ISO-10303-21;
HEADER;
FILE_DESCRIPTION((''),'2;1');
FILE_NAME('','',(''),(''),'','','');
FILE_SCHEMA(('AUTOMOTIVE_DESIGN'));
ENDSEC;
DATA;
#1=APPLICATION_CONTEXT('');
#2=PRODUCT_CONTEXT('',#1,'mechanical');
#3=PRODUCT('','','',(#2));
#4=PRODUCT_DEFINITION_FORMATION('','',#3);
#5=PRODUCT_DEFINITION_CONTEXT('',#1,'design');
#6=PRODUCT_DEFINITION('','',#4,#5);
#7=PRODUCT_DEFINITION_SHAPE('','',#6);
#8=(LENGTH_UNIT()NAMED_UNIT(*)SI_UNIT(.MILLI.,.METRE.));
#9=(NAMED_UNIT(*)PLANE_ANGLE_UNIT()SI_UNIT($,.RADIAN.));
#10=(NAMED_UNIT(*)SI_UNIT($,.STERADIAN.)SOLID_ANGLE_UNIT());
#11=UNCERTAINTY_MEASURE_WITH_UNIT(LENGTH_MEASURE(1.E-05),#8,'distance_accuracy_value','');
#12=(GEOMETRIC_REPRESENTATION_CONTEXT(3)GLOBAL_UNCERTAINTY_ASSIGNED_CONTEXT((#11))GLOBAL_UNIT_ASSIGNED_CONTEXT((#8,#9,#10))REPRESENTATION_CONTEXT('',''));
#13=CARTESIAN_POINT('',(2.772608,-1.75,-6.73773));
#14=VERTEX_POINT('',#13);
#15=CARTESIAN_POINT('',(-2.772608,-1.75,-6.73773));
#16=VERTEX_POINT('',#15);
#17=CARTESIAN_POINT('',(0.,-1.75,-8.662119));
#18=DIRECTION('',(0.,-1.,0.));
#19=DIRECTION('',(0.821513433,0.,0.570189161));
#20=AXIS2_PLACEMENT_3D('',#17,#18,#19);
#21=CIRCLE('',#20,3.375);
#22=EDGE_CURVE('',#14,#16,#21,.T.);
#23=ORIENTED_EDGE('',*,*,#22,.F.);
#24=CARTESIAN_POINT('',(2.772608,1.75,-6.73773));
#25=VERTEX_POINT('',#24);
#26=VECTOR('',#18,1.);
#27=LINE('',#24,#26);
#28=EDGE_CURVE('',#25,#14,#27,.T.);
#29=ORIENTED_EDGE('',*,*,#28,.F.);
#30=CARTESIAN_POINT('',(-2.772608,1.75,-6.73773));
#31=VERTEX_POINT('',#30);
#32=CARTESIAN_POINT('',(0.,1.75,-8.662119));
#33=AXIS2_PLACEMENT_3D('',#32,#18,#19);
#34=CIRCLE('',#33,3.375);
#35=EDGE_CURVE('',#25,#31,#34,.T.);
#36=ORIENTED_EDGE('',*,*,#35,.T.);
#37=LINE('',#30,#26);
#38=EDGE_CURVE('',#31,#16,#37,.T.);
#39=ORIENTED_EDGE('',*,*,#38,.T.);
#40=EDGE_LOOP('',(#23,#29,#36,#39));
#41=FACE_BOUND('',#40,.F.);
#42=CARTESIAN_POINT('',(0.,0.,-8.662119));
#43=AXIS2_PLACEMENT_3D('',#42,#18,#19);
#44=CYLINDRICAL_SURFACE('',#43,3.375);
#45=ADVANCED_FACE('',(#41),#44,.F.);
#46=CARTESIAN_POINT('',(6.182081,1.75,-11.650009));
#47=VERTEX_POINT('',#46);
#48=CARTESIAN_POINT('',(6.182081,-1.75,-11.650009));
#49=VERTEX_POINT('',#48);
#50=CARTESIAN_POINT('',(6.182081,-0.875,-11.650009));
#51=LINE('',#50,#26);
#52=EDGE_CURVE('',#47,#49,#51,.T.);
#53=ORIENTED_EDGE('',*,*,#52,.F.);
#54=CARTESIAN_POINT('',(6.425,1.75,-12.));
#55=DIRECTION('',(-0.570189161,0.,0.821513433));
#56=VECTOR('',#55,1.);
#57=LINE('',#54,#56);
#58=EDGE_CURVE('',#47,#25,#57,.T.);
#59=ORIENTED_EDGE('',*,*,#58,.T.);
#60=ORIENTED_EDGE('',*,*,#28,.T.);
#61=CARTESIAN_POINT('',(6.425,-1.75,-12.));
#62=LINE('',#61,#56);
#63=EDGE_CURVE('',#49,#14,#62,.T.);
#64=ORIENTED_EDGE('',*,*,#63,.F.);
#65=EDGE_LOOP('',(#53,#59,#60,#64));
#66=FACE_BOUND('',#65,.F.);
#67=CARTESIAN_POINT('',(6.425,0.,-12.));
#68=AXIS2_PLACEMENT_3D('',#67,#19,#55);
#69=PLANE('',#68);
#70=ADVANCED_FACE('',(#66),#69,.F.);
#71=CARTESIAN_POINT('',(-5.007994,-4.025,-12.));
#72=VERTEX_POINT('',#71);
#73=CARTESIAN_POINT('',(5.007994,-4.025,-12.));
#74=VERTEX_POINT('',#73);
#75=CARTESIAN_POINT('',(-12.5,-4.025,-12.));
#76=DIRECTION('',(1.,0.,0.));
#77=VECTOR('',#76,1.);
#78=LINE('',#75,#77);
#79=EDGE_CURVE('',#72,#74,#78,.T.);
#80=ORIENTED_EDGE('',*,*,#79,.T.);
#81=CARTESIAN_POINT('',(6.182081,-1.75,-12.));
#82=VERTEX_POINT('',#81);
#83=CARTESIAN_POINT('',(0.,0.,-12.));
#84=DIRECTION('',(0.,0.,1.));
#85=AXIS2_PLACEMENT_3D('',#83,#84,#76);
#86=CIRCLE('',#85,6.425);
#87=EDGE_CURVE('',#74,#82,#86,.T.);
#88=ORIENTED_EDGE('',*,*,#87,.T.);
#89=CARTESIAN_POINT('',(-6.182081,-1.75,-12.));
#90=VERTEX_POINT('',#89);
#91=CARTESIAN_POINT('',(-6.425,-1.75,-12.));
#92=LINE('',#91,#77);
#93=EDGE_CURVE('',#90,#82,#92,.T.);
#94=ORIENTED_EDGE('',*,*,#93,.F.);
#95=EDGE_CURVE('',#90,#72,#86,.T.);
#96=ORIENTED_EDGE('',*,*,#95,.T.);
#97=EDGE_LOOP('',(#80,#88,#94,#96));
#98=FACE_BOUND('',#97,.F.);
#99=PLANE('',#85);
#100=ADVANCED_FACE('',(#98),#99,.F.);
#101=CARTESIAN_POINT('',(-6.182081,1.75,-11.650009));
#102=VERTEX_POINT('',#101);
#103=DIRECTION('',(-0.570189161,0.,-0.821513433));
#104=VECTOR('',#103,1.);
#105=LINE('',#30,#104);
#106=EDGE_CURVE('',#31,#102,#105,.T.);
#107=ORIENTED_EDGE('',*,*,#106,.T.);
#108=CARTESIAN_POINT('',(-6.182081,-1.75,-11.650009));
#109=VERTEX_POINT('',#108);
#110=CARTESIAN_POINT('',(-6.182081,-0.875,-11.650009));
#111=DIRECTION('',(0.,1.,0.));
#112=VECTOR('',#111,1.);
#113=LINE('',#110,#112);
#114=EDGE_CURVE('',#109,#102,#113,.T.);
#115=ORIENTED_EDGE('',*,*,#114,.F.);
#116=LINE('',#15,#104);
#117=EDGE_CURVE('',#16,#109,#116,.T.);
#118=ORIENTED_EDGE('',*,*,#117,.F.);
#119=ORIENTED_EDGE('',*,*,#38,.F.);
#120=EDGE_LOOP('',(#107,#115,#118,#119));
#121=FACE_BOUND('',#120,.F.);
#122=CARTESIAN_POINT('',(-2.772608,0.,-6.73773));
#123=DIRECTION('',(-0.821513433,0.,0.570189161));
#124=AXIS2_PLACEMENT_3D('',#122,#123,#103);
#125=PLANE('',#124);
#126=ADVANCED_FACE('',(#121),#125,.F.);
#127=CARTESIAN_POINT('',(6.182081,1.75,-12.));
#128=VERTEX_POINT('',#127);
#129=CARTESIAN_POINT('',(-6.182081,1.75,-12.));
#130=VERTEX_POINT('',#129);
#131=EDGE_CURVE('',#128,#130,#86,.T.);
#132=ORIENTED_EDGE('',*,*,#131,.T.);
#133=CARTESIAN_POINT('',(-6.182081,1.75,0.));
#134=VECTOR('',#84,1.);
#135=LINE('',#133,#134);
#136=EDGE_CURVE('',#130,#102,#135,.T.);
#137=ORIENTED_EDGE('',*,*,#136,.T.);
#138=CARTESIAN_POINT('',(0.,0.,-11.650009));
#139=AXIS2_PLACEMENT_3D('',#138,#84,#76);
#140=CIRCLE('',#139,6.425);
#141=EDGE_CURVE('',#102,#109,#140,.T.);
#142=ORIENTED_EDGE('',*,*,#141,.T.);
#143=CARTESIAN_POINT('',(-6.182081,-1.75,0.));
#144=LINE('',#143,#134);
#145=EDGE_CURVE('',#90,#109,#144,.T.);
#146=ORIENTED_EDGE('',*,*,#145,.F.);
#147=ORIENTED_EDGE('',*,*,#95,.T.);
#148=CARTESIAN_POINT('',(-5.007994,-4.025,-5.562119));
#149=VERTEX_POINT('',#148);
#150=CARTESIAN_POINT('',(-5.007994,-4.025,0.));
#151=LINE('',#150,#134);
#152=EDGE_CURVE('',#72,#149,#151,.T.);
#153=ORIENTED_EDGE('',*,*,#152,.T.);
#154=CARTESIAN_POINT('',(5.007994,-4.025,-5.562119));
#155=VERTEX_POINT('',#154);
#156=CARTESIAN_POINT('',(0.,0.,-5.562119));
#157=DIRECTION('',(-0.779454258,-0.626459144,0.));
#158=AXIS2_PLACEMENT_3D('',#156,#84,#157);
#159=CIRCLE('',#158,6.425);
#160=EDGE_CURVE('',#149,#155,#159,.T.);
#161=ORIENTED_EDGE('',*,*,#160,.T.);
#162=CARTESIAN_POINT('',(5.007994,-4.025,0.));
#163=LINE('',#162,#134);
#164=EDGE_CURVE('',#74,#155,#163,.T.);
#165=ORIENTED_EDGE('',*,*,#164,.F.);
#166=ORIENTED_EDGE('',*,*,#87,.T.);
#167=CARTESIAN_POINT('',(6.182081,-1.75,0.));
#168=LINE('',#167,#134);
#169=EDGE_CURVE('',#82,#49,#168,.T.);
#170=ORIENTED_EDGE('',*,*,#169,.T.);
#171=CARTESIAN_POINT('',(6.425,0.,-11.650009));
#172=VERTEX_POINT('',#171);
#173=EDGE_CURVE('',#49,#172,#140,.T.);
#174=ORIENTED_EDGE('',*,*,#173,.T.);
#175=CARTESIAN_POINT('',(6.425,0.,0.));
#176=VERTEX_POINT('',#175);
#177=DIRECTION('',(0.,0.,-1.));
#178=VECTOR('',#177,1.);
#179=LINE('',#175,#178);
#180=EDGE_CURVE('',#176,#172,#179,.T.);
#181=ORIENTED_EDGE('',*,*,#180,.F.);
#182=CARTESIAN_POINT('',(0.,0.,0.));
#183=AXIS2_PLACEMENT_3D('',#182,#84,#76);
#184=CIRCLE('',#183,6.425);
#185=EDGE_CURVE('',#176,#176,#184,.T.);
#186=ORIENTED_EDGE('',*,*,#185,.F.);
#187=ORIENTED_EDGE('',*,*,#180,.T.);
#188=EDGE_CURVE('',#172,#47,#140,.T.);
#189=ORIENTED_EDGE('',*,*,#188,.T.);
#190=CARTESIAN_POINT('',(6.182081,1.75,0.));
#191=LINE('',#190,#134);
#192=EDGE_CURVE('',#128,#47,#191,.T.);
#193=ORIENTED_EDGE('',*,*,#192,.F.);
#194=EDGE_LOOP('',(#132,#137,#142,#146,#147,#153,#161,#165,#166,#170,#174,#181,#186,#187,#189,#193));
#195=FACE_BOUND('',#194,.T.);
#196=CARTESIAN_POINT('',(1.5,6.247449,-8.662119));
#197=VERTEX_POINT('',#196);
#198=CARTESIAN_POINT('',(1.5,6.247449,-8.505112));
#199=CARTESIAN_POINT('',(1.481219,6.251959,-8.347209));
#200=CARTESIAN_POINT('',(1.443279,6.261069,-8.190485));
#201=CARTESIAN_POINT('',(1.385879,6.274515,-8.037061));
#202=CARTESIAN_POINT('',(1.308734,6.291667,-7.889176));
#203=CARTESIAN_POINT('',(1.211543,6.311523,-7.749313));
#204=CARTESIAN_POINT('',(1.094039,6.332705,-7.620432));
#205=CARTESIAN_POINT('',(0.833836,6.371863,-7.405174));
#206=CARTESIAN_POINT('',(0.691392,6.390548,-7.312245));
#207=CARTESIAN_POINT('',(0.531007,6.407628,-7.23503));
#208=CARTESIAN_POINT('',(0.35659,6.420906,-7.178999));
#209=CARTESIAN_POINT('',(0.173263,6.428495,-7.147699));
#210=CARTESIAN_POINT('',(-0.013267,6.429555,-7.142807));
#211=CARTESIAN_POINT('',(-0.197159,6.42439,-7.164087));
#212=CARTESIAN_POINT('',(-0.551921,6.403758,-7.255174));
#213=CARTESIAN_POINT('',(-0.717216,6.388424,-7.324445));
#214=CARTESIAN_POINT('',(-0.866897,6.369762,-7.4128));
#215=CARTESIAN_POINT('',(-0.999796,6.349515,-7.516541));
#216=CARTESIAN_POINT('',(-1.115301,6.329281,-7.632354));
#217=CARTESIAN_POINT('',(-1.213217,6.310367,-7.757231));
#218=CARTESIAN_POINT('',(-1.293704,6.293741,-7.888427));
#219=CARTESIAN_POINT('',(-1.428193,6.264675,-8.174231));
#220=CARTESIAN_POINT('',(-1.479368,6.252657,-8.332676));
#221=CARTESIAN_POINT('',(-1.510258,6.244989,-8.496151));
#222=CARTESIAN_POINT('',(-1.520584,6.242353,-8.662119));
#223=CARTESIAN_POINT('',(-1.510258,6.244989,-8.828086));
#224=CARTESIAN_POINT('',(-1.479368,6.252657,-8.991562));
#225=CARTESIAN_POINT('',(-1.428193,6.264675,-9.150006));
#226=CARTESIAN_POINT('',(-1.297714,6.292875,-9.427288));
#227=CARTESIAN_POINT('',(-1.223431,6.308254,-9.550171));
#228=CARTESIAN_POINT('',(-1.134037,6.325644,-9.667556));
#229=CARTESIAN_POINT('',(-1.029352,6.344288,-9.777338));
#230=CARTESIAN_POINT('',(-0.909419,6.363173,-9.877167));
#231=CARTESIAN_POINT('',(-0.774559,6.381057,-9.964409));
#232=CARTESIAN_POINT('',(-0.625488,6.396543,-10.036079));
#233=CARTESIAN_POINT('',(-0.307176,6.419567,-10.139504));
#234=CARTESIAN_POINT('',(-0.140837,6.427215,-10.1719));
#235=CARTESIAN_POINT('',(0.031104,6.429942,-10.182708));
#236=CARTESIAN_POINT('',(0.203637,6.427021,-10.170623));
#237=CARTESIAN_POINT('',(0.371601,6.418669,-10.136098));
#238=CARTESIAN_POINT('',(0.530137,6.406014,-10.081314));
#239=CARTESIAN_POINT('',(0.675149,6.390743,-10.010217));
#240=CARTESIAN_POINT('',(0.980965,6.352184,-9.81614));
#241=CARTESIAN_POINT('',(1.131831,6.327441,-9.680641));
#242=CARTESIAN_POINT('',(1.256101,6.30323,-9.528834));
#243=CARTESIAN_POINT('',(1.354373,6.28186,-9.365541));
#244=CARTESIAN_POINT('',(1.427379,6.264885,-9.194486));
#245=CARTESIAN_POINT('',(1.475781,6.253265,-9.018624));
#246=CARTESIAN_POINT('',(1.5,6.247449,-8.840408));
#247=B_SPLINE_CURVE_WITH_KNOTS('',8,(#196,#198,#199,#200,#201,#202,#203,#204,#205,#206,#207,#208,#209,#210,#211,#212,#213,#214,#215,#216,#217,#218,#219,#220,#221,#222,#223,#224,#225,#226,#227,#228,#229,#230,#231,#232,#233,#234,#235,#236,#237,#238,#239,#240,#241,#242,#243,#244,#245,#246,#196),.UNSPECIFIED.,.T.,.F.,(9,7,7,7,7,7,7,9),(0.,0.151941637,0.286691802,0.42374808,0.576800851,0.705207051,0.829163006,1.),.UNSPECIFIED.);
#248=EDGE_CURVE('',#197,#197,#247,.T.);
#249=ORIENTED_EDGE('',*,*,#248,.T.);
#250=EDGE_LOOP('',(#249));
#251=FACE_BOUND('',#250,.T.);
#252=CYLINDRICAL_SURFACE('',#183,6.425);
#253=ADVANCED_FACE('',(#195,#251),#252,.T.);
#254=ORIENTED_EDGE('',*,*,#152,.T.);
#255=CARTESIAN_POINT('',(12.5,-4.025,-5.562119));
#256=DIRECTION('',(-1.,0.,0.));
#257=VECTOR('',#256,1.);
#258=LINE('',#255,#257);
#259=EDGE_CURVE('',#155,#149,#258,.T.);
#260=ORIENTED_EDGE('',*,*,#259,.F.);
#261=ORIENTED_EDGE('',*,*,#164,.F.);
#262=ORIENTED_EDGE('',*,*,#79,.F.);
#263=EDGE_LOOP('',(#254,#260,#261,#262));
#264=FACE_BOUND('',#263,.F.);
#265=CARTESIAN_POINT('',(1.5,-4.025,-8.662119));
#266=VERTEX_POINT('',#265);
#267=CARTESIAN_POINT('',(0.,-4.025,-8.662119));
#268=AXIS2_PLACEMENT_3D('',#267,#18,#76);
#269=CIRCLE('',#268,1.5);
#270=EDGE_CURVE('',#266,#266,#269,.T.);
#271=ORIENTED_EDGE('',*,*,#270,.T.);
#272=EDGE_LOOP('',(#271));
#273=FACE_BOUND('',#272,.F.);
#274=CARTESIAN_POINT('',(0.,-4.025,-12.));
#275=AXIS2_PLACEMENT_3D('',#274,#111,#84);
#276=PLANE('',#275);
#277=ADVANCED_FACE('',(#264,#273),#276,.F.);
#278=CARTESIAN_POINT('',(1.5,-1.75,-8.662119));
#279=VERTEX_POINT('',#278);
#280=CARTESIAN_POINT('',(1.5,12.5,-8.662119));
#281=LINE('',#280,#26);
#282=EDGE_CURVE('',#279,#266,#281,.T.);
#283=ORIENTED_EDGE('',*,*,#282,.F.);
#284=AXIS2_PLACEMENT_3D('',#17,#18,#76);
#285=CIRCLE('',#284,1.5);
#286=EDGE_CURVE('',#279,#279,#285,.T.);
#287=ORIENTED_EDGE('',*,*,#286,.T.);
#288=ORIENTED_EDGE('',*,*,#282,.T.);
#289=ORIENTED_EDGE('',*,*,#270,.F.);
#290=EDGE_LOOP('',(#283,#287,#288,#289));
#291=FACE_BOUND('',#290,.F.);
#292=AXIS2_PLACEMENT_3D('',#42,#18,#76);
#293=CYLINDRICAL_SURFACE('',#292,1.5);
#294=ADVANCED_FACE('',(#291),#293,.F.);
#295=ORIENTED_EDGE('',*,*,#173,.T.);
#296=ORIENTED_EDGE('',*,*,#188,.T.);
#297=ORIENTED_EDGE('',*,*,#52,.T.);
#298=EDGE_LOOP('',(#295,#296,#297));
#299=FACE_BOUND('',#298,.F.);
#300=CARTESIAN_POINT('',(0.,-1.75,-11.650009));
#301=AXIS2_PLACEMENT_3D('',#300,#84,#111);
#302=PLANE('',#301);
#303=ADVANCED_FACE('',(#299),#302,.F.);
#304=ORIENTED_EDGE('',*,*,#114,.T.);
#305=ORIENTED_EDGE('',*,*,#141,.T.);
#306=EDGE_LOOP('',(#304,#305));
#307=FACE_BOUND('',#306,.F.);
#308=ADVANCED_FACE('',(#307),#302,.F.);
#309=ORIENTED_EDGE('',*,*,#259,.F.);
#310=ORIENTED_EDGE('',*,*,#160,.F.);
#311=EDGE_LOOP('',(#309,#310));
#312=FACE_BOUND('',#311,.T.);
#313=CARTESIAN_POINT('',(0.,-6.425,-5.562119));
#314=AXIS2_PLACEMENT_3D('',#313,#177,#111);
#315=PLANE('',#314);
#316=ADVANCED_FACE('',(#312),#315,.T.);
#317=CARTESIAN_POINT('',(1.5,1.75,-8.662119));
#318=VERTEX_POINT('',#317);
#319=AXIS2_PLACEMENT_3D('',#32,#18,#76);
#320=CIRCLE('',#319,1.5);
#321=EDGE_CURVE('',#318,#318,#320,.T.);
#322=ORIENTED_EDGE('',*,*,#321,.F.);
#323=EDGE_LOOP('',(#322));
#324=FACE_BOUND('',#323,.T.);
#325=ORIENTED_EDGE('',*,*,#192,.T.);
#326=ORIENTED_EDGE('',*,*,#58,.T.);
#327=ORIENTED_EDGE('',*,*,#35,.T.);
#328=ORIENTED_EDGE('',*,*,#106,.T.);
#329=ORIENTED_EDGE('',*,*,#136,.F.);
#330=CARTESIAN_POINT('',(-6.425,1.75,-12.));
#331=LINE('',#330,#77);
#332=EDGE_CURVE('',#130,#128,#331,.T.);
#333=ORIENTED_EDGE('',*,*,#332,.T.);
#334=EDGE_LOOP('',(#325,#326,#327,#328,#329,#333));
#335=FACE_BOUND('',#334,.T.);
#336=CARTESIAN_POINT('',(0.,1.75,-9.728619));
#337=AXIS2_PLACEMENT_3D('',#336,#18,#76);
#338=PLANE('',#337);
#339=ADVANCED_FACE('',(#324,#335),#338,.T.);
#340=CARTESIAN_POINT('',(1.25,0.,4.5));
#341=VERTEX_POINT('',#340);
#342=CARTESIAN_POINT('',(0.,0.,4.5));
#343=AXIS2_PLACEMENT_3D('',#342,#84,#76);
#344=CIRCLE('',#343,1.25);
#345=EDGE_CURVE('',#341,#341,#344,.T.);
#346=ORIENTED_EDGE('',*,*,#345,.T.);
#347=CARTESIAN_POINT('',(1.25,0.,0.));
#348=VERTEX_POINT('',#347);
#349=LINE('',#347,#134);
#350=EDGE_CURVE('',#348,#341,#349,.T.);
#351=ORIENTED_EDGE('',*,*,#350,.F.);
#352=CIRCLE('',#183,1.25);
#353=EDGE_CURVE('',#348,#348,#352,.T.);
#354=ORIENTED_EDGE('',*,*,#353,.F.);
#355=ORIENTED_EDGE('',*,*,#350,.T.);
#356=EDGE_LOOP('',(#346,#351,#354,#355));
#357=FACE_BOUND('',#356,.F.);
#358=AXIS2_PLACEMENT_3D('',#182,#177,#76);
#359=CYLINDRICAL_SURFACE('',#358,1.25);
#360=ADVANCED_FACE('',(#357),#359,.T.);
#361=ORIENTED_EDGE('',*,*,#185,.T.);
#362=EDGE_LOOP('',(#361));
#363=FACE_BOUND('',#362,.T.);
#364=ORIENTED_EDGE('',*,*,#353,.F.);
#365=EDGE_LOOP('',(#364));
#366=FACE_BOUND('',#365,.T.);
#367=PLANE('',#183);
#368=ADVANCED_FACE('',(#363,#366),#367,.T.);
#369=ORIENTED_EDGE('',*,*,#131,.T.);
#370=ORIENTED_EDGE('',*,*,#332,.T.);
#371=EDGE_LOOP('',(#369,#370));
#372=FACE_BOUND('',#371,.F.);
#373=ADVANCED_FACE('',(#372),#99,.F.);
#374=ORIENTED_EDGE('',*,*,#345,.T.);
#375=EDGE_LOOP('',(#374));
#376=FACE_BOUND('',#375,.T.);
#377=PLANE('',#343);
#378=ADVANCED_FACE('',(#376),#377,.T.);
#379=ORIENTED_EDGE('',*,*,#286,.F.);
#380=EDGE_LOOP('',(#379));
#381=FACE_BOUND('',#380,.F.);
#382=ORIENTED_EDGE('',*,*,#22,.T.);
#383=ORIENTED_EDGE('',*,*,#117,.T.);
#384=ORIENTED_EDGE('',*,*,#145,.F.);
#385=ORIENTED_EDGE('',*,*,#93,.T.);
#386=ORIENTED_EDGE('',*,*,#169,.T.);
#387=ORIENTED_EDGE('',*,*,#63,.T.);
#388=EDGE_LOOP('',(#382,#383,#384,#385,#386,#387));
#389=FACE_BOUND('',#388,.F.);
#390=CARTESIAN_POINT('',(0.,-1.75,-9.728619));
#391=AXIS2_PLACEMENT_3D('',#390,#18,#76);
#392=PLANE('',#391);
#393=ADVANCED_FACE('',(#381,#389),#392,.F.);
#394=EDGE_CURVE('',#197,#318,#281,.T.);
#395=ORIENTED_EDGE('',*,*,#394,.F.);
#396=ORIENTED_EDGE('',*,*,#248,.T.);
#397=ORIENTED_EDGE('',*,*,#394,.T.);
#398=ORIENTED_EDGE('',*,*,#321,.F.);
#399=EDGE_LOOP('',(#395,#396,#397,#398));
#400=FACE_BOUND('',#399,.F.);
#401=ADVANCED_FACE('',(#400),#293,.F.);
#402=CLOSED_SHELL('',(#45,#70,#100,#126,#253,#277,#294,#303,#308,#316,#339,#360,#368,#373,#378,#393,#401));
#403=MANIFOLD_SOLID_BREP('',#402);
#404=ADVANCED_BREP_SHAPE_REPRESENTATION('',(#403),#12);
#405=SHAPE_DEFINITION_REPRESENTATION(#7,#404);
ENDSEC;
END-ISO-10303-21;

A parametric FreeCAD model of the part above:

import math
import FreeCAD as App
import Part
import Sketcher
from FreeCAD import Vector

doc = App.newDocument("Part")
params = doc.addObject("Spreadsheet::Sheet", "Params")
for row, (alias, value) in enumerate([
    ("sketch1_diameter", "12.85 mm"),
    ("pad1_length", "12 mm"),
    ("sketch2_diameter", "3 mm"),
    ("pocket1_length", "25 mm"),
    ("sketch3_width", "12.85 mm"),
    ("pocket2_length", "3.5 mm"),
    ("sketch4_width", "3.5 mm"),
    ("sketch4_width2", "2.4 mm"),
    ("pocket3_length", "25 mm"),
    ("sketch5_diameter", "2.5 mm"),
    ("pad2_length", "4.5 mm"),
], start=1):
    params.set(f"A{row}", alias)
    params.set(f"B{row}", "=" + value)
    params.setAlias(f"B{row}", alias)

body = doc.addObject("PartDesign::Body", "Body")

# Sketch on XY plane
sketch1 = body.newObject("Sketcher::SketchObject", "Sketch")
sketch1.AttachmentSupport = (doc.getObject("XY_Plane"), [""])
sketch1.MapMode = "FlatFace"
sketch1.addGeometry(Part.Circle(Vector(0, 0, 0), Vector(0, 0, 1), 6.425), False)
sketch1.addConstraint([
    Sketcher.Constraint("Coincident", 0, 3, -1, 1),
    Sketcher.Constraint("Diameter", 0, 12.85),
])
sketch1.setExpression("Constraints[1]", "Params.sketch1_diameter")
pad1 = body.newObject("PartDesign::Pad", "Pad")
pad1.Profile = sketch1
pad1.setExpression("Length", "Params.pad1_length")
pad1.Reversed = True

# Sketch on XZ plane
sketch2 = body.newObject("Sketcher::SketchObject", "Sketch001")
sketch2.AttachmentSupport = (doc.getObject("XZ_Plane"), [""])
sketch2.MapMode = "FlatFace"
sketch2.addGeometry(Part.Circle(Vector(0, -8.662119, 0), Vector(0, 0, 1), 1.5), False)
sketch2.addConstraint([
    Sketcher.Constraint("PointOnObject", 0, 3, -2),
    Sketcher.Constraint("Diameter", 0, 3.0),
    Sketcher.Constraint("DistanceY", 0, 3, -1, 1, 8.662119),
])
sketch2.setExpression("Constraints[1]", "Params.sketch2_diameter")
pocket1 = body.newObject("PartDesign::Pocket", "Pocket")
pocket1.Profile = sketch2
pocket1.setExpression("Length", "Params.pocket1_length")
pocket1.Midplane = True

# Sketch on XZ plane
sketch3 = body.newObject("Sketcher::SketchObject", "Sketch002")
sketch3.AttachmentSupport = (doc.getObject("XZ_Plane"), [""])
sketch3.MapMode = "FlatFace"
sketch3.addGeometry([
    Part.LineSegment(Vector(6.425, -12, 0), Vector(2.772608, -6.73773, 0)),
    Part.ArcOfCircle(Part.Circle(Vector(0, -8.662119, 0), Vector(0, 0, 1), 3.375), math.radians(34.763418), math.radians(145.236582)),
    Part.LineSegment(Vector(-2.772608, -6.73773, 0), Vector(-6.425, -12, 0)),
    Part.LineSegment(Vector(-6.425, -12, 0), Vector(6.425, -12, 0)),
], False)
sketch3.addConstraint([
    Sketcher.Constraint("Tangent", 0, 2, 1, 1),
    Sketcher.Constraint("Tangent", 1, 2, 2, 1),
    Sketcher.Constraint("Coincident", 2, 2, 3, 1),
    Sketcher.Constraint("Coincident", 3, 2, 0, 1),
    Sketcher.Constraint("Horizontal", 3),
    Sketcher.Constraint("Symmetric", 0, 2, 1, 2, -2),
    Sketcher.Constraint("DistanceY", 2, 2, -1, 1, 12.0),
    Sketcher.Constraint("Radius", 1, 3.375),
    Sketcher.Constraint("DistanceX", 3, 1, 3, 2, 12.85),
    Sketcher.Constraint("Distance", 0, 6.40558),
])
sketch3.setExpression("Constraints[8]", "Params.sketch3_width")
pocket2 = body.newObject("PartDesign::Pocket", "Pocket001")
pocket2.Profile = sketch3
pocket2.setExpression("Length", "Params.pocket2_length")
pocket2.Midplane = True

# Sketch on YZ plane
sketch4 = body.newObject("Sketcher::SketchObject", "Sketch003")
sketch4.AttachmentSupport = (doc.getObject("YZ_Plane"), [""])
sketch4.MapMode = "FlatFace"
sketch4.addGeometry([
    Part.LineSegment(Vector(-1.75, -11.650009, 0), Vector(-1.75, -12, 0)),  # 0
    Part.LineSegment(Vector(-1.75, -12, 0), Vector(1.75, -12, 0)),  # 1
    Part.LineSegment(Vector(1.75, -12, 0), Vector(1.75, -11.650009, 0)),  # 2
    Part.LineSegment(Vector(1.75, -11.650009, 0), Vector(-1.75, -11.650009, 0)),  # 3
    Part.LineSegment(Vector(-6.425, -5.562119, 0), Vector(-6.425, -12, 0)),  # 4
    Part.LineSegment(Vector(-6.425, -12, 0), Vector(-4.025, -12, 0)),  # 5
    Part.LineSegment(Vector(-4.025, -12, 0), Vector(-4.025, -5.562119, 0)),  # 6
    Part.LineSegment(Vector(-4.025, -5.562119, 0), Vector(-6.425, -5.562119, 0)),  # 7
], False)
sketch4.addConstraint([
    Sketcher.Constraint("Coincident", 0, 2, 1, 1),
    Sketcher.Constraint("Coincident", 1, 2, 2, 1),
    Sketcher.Constraint("Coincident", 2, 2, 3, 1),
    Sketcher.Constraint("Coincident", 3, 2, 0, 1),
    Sketcher.Constraint("Coincident", 4, 2, 5, 1),
    Sketcher.Constraint("Coincident", 5, 2, 6, 1),
    Sketcher.Constraint("Coincident", 6, 2, 7, 1),
    Sketcher.Constraint("Coincident", 7, 2, 4, 1),
    Sketcher.Constraint("Vertical", 0),
    Sketcher.Constraint("Horizontal", 1),
    Sketcher.Constraint("Vertical", 2),
    Sketcher.Constraint("Horizontal", 3),
    Sketcher.Constraint("Vertical", 4),
    Sketcher.Constraint("Horizontal", 5),
    Sketcher.Constraint("Vertical", 6),
    Sketcher.Constraint("Horizontal", 7),
    Sketcher.Constraint("Horizontal", 1, 2, 4, 2),
    Sketcher.Constraint("DistanceX", 1, 1, 1, 2, 3.5),
    Sketcher.Constraint("DistanceX", 5, 1, 5, 2, 2.4),
    Sketcher.Constraint("DistanceY", 0, 2, -1, 1, 12.0),
    Sketcher.Constraint("DistanceX", 0, 2, -1, 1, 1.75),
    Sketcher.Constraint("DistanceX", 4, 2, -1, 1, 6.425),
    Sketcher.Constraint("DistanceY", 0, 2, 0, 1, 0.349991),
    Sketcher.Constraint("DistanceY", 4, 2, 4, 1, 6.437881),
])
sketch4.setExpression("Constraints[17]", "Params.sketch4_width")
sketch4.setExpression("Constraints[18]", "Params.sketch4_width2")
pocket3 = body.newObject("PartDesign::Pocket", "Pocket002")
pocket3.Profile = sketch4
pocket3.setExpression("Length", "Params.pocket3_length")
pocket3.Midplane = True

# Sketch on XY plane
sketch5 = body.newObject("Sketcher::SketchObject", "Sketch004")
sketch5.AttachmentSupport = (doc.getObject("XY_Plane"), [""])
sketch5.MapMode = "FlatFace"
sketch5.addGeometry(Part.Circle(Vector(0, 0, 0), Vector(0, 0, 1), 1.25), False)
sketch5.addConstraint([
    Sketcher.Constraint("Coincident", 0, 3, -1, 1),
    Sketcher.Constraint("Diameter", 0, 2.5),
])
sketch5.setExpression("Constraints[1]", "Params.sketch5_diameter")
pad2 = body.newObject("PartDesign::Pad", "Pad001")
pad2.Profile = sketch5
pad2.setExpression("Length", "Params.pad2_length")

doc.recompute()
